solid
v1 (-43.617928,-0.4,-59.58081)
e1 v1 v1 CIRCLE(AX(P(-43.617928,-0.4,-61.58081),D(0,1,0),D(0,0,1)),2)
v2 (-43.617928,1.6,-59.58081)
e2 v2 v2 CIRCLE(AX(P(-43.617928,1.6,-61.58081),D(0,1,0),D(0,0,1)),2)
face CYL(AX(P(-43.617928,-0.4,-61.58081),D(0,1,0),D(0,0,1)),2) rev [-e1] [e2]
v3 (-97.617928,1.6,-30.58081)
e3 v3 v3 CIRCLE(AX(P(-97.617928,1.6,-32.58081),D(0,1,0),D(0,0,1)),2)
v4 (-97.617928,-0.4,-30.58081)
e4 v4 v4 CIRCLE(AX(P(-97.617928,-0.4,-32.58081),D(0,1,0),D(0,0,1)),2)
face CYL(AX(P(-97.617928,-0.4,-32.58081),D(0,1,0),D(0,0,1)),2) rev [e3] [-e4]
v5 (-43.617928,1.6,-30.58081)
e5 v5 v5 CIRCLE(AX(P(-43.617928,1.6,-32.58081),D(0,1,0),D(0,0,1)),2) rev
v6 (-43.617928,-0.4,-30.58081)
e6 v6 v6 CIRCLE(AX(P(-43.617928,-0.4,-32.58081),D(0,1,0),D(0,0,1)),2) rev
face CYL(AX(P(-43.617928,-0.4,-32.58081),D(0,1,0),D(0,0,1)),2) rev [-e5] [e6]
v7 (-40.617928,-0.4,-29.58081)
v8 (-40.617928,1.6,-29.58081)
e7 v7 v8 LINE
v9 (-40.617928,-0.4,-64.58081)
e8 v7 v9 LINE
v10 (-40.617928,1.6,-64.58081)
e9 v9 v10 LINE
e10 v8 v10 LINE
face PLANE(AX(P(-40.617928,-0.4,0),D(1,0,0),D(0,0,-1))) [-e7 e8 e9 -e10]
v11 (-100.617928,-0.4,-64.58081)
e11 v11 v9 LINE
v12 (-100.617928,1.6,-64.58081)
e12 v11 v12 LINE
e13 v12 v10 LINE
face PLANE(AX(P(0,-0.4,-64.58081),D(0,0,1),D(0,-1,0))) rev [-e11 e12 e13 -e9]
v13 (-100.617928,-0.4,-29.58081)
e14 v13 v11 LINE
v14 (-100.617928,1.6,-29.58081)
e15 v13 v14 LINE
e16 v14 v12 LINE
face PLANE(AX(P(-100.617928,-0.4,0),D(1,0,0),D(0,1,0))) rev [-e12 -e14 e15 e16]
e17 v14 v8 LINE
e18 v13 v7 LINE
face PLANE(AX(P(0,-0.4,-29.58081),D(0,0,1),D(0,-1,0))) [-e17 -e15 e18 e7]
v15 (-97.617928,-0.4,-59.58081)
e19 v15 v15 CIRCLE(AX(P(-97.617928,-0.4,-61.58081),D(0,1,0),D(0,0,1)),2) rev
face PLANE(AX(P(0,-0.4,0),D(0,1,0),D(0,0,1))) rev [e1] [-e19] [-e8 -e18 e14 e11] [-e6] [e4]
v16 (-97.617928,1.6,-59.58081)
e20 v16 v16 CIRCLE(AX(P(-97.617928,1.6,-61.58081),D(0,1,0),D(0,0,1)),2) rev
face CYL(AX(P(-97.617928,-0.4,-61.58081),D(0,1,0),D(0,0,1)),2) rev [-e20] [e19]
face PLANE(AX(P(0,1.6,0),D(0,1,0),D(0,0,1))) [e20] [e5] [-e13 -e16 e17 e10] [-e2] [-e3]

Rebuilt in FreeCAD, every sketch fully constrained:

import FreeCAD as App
import Part
import Sketcher
from FreeCAD import Vector
Q = App.Units.Quantity

doc = App.newDocument("Part")
params = doc.addObject("Spreadsheet::Sheet", "Params")
for row, (alias, value) in enumerate([
    ("sketch1_diameter", "4 mm"),
    ("sketch1_width", "60 mm"),
    ("sketch1_height", "35 mm"),
    ("pad1_length", "2 mm"),
], start=1):
    params.set(f"A{row}", alias)
    params.set(f"B{row}", "=" + value)
    params.setAlias(f"B{row}", alias)

body = doc.addObject("PartDesign::Body", "Body")

# Sketch on XZ plane
sketch1 = body.newObject("Sketcher::SketchObject", "Sketch")
sketch1.AttachmentSupport = (doc.getObject("XZ_Plane"), [""])
sketch1.MapMode = "FlatFace"
sketch1.AttachmentOffset = App.Placement(Vector(0, 0, -1.6), App.Rotation())
sketch1.addGeometry([
    Part.LineSegment(Vector(-100.6, -64.6, 0), Vector(-100.6, -29.6, 0)),  # 0
    Part.LineSegment(Vector(-100.6, -29.6, 0), Vector(-40.6, -29.6, 0)),  # 1
    Part.LineSegment(Vector(-40.6, -29.6, 0), Vector(-40.6, -64.6, 0)),  # 2
    Part.LineSegment(Vector(-40.6, -64.6, 0), Vector(-100.6, -64.6, 0)),  # 3
    Part.Circle(Vector(-97.6, -32.6, 0), Vector(0, 0, 1), 2),  # 4
    Part.Circle(Vector(-43.6, -32.6, 0), Vector(0, 0, 1), 2),  # 5
    Part.Circle(Vector(-97.6, -61.6, 0), Vector(0, 0, 1), 2),  # 6
    Part.Circle(Vector(-43.6, -61.6, 0), Vector(0, 0, 1), 2),  # 7
], False)
sketch1.addConstraint([
    Sketcher.Constraint("Coincident", 0, 2, 1, 1),
    Sketcher.Constraint("Coincident", 1, 2, 2, 1),
    Sketcher.Constraint("Coincident", 2, 2, 3, 1),
    Sketcher.Constraint("Coincident", 3, 2, 0, 1),
    Sketcher.Constraint("Vertical", 0),
    Sketcher.Constraint("Horizontal", 1),
    Sketcher.Constraint("Vertical", 2),
    Sketcher.Constraint("Horizontal", 3),
    Sketcher.Constraint("Equal", 4, 5),
    Sketcher.Constraint("Equal", 5, 6),
    Sketcher.Constraint("Equal", 6, 7),
    Sketcher.Constraint("Horizontal", 4, 3, 5, 3),
    Sketcher.Constraint("Horizontal", 6, 3, 7, 3),
    Sketcher.Constraint("Vertical", 4, 3, 6, 3),
    Sketcher.Constraint("Vertical", 5, 3, 7, 3),
    Sketcher.Constraint("Diameter", 4, Q("4 mm")),
    Sketcher.Constraint("DistanceX", 1, 1, 1, 2, Q("60 mm")),
    Sketcher.Constraint("DistanceY", 0, 1, 0, 2, Q("35 mm")),
    Sketcher.Constraint("DistanceX", 4, 3, 5, 3, Q("54 mm")),
    Sketcher.Constraint("DistanceY", 6, 3, 4, 3, Q("29 mm")),
    Sketcher.Constraint("DistanceX", 0, 2, 4, 3, Q("3 mm")),
    Sketcher.Constraint("DistanceY", 4, 3, 0, 2, Q("3 mm")),
    Sketcher.Constraint("DistanceY", 4, 3, -1, 1, Q("32.58081 mm")),
    Sketcher.Constraint("DistanceX", 4, 3, -1, 1, Q("97.617928 mm")),
])
sketch1.setExpression("Constraints[15]", "Params.sketch1_diameter")
sketch1.setExpression("Constraints[16]", "Params.sketch1_width")
sketch1.setExpression("Constraints[17]", "Params.sketch1_height")
pad1 = body.newObject("PartDesign::Pad", "Pad")
pad1.Profile = sketch1
pad1.setExpression("Length", "Params.pad1_length")

doc.recompute()
